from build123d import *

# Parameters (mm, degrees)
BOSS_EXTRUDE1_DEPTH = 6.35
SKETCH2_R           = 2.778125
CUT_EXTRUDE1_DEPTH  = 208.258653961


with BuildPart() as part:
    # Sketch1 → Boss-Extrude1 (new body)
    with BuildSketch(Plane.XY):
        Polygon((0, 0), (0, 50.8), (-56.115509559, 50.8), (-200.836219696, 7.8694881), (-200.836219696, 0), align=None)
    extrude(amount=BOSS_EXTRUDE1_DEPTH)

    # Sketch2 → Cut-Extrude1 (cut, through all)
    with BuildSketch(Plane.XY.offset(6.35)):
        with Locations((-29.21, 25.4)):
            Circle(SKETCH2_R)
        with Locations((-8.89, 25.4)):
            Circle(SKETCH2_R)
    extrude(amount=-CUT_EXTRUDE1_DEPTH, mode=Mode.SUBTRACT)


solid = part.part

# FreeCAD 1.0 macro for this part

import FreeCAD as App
import Part
import Sketcher
from FreeCAD import Vector
Q = App.Units.Quantity


def add_polygon(sketch, points):
    """Adds a closed chain of lines whose ends are joined by coincident constraints."""
    first, n = sketch.GeometryCount, len(points)
    for a, b in zip(points, points[1:] + points[:1]):
        sketch.addGeometry(Part.LineSegment(App.Vector(*a, 0), App.Vector(*b, 0)), False)
    for i in range(n):
        sketch.addConstraint(Sketcher.Constraint("Coincident", first + i, 2, first + (i + 1) % n, 1))

doc = App.newDocument("Part")
body = doc.addObject("PartDesign::Body", "Body")

# Sketch on XY plane
sketch1 = doc.addObject("Sketcher::SketchObject", "Sketch")
body.addObject(sketch1)
sketch1.AttachmentSupport = (doc.XY_Plane, [""])
sketch1.MapMode = "FlatFace"
add_polygon(sketch1, [(0, 0), (0, 51), (-56, 51), (-201, 8), (-201, 0)])  # lines 0-4
sketch1.addConstraint(Sketcher.Constraint("Vertical", 0))
sketch1.addConstraint(Sketcher.Constraint("Horizontal", 1))
sketch1.addConstraint(Sketcher.Constraint("Vertical", 3))
sketch1.addConstraint(Sketcher.Constraint("Horizontal", 4))
sketch1.addConstraint(Sketcher.Constraint("Coincident", 4, 2, -1, 1))
sketch1.addConstraint(Sketcher.Constraint("DistanceY", 0, 1, 0, 2, Q("2 in")))
sketch1.addConstraint(Sketcher.Constraint("DistanceX", 1, 2, 1, 1, 56.11551))
sketch1.addConstraint(Sketcher.Constraint("DistanceX", 4, 1, 4, 2, 200.83622))
sketch1.addConstraint(Sketcher.Constraint("DistanceY", 3, 2, 3, 1, 7.869488))
pad1 = doc.addObject("PartDesign::Pad", "Pad")
body.addObject(pad1)
pad1.Profile = sketch1
pad1.Length = Q("0.25 in")

# Sketch on XY plane
sketch2 = doc.addObject("Sketcher::SketchObject", "Sketch001")
body.addObject(sketch2)
sketch2.AttachmentSupport = (doc.XY_Plane, [""])
sketch2.MapMode = "FlatFace"
sketch2.AttachmentOffset = App.Placement(Vector(0, 0, 0.25 * 25.4), App.Rotation())
sketch2.addGeometry(Part.Circle(Vector(-29.2, 25.4, 0), Vector(0, 0, 1), 2.8), False)
sketch2.addGeometry(Part.Circle(Vector(-8.9, 25.4, 0), Vector(0, 0, 1), 2.8), False)
sketch2.addConstraint(Sketcher.Constraint("Equal", 0, 1))
sketch2.addConstraint(Sketcher.Constraint("Horizontal", 0, 3, 1, 3))
sketch2.addConstraint(Sketcher.Constraint("Diameter", 0, Q("0.21875 in")))
sketch2.addConstraint(Sketcher.Constraint("DistanceY", -1, 1, 0, 3, Q("1 in")))
sketch2.addConstraint(Sketcher.Constraint("DistanceX", 0, 3, 1, 3, Q("0.8 in")))
sketch2.addConstraint(Sketcher.Constraint("DistanceX", 0, 3, -1, 1, Q("1.15 in")))
pocket1 = doc.addObject("PartDesign::Pocket", "Pocket")
body.addObject(pocket1)
pocket1.Profile = sketch2
pocket1.Type = "ThroughAll"

doc.recompute()
